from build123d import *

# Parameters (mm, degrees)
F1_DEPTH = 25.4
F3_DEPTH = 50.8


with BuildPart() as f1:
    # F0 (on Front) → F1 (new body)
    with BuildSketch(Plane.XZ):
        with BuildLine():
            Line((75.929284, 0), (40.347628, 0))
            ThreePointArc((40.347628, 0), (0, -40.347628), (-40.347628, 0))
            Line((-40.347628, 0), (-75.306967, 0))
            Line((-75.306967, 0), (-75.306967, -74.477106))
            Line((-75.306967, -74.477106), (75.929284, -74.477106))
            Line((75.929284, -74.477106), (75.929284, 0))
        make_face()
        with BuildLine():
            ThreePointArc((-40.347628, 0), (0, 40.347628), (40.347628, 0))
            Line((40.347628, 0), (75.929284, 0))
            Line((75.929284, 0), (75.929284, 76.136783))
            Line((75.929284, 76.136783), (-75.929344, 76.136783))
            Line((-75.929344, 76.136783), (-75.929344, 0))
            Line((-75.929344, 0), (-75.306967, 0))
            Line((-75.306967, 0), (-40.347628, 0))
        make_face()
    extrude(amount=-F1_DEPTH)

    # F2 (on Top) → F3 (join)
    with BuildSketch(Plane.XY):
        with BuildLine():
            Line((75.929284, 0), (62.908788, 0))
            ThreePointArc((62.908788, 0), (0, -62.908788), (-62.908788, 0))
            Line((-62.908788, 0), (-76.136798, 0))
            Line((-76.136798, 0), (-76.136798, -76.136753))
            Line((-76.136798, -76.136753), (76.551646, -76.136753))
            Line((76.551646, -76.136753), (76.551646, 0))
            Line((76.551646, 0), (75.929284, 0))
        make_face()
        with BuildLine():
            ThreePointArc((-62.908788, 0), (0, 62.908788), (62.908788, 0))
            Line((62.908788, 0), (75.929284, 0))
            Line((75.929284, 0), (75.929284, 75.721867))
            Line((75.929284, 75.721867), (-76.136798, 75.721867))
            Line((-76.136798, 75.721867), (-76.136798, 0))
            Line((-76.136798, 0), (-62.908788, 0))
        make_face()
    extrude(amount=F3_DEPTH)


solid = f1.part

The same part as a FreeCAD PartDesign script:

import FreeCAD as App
import Part
import Sketcher

V = App.Vector
Q = App.Units.Quantity


def add_polygon(sketch, points):
    """Adds a closed chain of lines whose ends are joined by coincident constraints."""
    first, n = sketch.GeometryCount, len(points)
    for a, b in zip(points, points[1:] + points[:1]):
        sketch.addGeometry(Part.LineSegment(App.Vector(*a, 0), App.Vector(*b, 0)), False)
    for i in range(n):
        sketch.addConstraint(Sketcher.Constraint("Coincident", first + i, 2, first + (i + 1) % n, 1))

doc = App.newDocument("Part")
body = doc.addObject("PartDesign::Body", "Body")

# Sketch on XZ plane
sketch1 = body.newObject("Sketcher::SketchObject", "Sketch")
sketch1.AttachmentSupport = (doc.getObject("XZ_Plane"), [""])
sketch1.MapMode = "FlatFace"
add_polygon(sketch1, [(-75.3, 0), (-75.3, -74.5), (75.9, -74.5), (75.9, 76.1), (-75.9, 76.1), (-75.9, 0)])  # lines 0-5
sketch1.addGeometry(Part.Circle(V(0, 0, 0), V(0, 0, 1), 40.3), False)  # 6
sketch1.addConstraint([
    Sketcher.Constraint("Vertical", 0),
    Sketcher.Constraint("Horizontal", 1),
    Sketcher.Constraint("Vertical", 2),
    Sketcher.Constraint("Horizontal", 3),
    Sketcher.Constraint("Vertical", 4),
    Sketcher.Constraint("Horizontal", 5),
    Sketcher.Constraint("Coincident", 6, 3, -1, 1),
    Sketcher.Constraint("PointOnObject", 4, 2, -1),
    Sketcher.Constraint("Diameter", 6, Q("80.695256 mm")),
    Sketcher.Constraint("DistanceX", 1, 1, 1, 2, Q("151.236251 mm")),
    Sketcher.Constraint("DistanceX", 3, 2, 3, 1, Q("151.858628 mm")),
    Sketcher.Constraint("DistanceY", 2, 1, 2, 2, Q("150.613889 mm")),
    Sketcher.Constraint("DistanceY", 0, 2, 0, 1, Q("74.477106 mm")),
    Sketcher.Constraint("DistanceX", 0, 2, -1, 1, Q("75.306967 mm")),
])
pad1 = body.newObject("PartDesign::Pad", "Pad")
pad1.Profile = sketch1
pad1.Length = Q("1 in")
pad1.Reversed = True

# Sketch on XY plane
sketch2 = body.newObject("Sketcher::SketchObject", "Sketch001")
sketch2.AttachmentSupport = (doc.getObject("XY_Plane"), [""])
sketch2.MapMode = "FlatFace"
add_polygon(sketch2, [(-76.1, -76.1), (76.6, -76.1), (76.6, 0), (75.9, 0), (75.9, 75.7), (-76.1, 75.7)])  # lines 0-5
sketch2.addGeometry(Part.Circle(V(0, 0, 0), V(0, 0, 1), 62.9), False)  # 6
sketch2.addConstraint([
    Sketcher.Constraint("Horizontal", 0),
    Sketcher.Constraint("Vertical", 1),
    Sketcher.Constraint("Horizontal", 2),
    Sketcher.Constraint("Vertical", 3),
    Sketcher.Constraint("Horizontal", 4),
    Sketcher.Constraint("Vertical", 5),
    Sketcher.Constraint("Coincident", 6, 3, -1, 1),
    Sketcher.Constraint("PointOnObject", 1, 2, -1),
    Sketcher.Constraint("Diameter", 6, Q("125.817576 mm")),
    Sketcher.Constraint("DistanceX", 4, 2, 4, 1, Q("152.066082 mm")),
    Sketcher.Constraint("DistanceY", 5, 2, 5, 1, Q("151.85862 mm")),
    Sketcher.Constraint("DistanceX", 4, 2, -1, 1, Q("76.136798 mm")),
    Sketcher.Constraint("DistanceX", 0, 1, 0, 2, Q("152.688444 mm")),
    Sketcher.Constraint("DistanceY", 1, 1, 1, 2, Q("76.136753 mm")),
])
pad2 = body.newObject("PartDesign::Pad", "Pad001")
pad2.Profile = sketch2
pad2.Length = Q("2 in")

doc.recompute()
